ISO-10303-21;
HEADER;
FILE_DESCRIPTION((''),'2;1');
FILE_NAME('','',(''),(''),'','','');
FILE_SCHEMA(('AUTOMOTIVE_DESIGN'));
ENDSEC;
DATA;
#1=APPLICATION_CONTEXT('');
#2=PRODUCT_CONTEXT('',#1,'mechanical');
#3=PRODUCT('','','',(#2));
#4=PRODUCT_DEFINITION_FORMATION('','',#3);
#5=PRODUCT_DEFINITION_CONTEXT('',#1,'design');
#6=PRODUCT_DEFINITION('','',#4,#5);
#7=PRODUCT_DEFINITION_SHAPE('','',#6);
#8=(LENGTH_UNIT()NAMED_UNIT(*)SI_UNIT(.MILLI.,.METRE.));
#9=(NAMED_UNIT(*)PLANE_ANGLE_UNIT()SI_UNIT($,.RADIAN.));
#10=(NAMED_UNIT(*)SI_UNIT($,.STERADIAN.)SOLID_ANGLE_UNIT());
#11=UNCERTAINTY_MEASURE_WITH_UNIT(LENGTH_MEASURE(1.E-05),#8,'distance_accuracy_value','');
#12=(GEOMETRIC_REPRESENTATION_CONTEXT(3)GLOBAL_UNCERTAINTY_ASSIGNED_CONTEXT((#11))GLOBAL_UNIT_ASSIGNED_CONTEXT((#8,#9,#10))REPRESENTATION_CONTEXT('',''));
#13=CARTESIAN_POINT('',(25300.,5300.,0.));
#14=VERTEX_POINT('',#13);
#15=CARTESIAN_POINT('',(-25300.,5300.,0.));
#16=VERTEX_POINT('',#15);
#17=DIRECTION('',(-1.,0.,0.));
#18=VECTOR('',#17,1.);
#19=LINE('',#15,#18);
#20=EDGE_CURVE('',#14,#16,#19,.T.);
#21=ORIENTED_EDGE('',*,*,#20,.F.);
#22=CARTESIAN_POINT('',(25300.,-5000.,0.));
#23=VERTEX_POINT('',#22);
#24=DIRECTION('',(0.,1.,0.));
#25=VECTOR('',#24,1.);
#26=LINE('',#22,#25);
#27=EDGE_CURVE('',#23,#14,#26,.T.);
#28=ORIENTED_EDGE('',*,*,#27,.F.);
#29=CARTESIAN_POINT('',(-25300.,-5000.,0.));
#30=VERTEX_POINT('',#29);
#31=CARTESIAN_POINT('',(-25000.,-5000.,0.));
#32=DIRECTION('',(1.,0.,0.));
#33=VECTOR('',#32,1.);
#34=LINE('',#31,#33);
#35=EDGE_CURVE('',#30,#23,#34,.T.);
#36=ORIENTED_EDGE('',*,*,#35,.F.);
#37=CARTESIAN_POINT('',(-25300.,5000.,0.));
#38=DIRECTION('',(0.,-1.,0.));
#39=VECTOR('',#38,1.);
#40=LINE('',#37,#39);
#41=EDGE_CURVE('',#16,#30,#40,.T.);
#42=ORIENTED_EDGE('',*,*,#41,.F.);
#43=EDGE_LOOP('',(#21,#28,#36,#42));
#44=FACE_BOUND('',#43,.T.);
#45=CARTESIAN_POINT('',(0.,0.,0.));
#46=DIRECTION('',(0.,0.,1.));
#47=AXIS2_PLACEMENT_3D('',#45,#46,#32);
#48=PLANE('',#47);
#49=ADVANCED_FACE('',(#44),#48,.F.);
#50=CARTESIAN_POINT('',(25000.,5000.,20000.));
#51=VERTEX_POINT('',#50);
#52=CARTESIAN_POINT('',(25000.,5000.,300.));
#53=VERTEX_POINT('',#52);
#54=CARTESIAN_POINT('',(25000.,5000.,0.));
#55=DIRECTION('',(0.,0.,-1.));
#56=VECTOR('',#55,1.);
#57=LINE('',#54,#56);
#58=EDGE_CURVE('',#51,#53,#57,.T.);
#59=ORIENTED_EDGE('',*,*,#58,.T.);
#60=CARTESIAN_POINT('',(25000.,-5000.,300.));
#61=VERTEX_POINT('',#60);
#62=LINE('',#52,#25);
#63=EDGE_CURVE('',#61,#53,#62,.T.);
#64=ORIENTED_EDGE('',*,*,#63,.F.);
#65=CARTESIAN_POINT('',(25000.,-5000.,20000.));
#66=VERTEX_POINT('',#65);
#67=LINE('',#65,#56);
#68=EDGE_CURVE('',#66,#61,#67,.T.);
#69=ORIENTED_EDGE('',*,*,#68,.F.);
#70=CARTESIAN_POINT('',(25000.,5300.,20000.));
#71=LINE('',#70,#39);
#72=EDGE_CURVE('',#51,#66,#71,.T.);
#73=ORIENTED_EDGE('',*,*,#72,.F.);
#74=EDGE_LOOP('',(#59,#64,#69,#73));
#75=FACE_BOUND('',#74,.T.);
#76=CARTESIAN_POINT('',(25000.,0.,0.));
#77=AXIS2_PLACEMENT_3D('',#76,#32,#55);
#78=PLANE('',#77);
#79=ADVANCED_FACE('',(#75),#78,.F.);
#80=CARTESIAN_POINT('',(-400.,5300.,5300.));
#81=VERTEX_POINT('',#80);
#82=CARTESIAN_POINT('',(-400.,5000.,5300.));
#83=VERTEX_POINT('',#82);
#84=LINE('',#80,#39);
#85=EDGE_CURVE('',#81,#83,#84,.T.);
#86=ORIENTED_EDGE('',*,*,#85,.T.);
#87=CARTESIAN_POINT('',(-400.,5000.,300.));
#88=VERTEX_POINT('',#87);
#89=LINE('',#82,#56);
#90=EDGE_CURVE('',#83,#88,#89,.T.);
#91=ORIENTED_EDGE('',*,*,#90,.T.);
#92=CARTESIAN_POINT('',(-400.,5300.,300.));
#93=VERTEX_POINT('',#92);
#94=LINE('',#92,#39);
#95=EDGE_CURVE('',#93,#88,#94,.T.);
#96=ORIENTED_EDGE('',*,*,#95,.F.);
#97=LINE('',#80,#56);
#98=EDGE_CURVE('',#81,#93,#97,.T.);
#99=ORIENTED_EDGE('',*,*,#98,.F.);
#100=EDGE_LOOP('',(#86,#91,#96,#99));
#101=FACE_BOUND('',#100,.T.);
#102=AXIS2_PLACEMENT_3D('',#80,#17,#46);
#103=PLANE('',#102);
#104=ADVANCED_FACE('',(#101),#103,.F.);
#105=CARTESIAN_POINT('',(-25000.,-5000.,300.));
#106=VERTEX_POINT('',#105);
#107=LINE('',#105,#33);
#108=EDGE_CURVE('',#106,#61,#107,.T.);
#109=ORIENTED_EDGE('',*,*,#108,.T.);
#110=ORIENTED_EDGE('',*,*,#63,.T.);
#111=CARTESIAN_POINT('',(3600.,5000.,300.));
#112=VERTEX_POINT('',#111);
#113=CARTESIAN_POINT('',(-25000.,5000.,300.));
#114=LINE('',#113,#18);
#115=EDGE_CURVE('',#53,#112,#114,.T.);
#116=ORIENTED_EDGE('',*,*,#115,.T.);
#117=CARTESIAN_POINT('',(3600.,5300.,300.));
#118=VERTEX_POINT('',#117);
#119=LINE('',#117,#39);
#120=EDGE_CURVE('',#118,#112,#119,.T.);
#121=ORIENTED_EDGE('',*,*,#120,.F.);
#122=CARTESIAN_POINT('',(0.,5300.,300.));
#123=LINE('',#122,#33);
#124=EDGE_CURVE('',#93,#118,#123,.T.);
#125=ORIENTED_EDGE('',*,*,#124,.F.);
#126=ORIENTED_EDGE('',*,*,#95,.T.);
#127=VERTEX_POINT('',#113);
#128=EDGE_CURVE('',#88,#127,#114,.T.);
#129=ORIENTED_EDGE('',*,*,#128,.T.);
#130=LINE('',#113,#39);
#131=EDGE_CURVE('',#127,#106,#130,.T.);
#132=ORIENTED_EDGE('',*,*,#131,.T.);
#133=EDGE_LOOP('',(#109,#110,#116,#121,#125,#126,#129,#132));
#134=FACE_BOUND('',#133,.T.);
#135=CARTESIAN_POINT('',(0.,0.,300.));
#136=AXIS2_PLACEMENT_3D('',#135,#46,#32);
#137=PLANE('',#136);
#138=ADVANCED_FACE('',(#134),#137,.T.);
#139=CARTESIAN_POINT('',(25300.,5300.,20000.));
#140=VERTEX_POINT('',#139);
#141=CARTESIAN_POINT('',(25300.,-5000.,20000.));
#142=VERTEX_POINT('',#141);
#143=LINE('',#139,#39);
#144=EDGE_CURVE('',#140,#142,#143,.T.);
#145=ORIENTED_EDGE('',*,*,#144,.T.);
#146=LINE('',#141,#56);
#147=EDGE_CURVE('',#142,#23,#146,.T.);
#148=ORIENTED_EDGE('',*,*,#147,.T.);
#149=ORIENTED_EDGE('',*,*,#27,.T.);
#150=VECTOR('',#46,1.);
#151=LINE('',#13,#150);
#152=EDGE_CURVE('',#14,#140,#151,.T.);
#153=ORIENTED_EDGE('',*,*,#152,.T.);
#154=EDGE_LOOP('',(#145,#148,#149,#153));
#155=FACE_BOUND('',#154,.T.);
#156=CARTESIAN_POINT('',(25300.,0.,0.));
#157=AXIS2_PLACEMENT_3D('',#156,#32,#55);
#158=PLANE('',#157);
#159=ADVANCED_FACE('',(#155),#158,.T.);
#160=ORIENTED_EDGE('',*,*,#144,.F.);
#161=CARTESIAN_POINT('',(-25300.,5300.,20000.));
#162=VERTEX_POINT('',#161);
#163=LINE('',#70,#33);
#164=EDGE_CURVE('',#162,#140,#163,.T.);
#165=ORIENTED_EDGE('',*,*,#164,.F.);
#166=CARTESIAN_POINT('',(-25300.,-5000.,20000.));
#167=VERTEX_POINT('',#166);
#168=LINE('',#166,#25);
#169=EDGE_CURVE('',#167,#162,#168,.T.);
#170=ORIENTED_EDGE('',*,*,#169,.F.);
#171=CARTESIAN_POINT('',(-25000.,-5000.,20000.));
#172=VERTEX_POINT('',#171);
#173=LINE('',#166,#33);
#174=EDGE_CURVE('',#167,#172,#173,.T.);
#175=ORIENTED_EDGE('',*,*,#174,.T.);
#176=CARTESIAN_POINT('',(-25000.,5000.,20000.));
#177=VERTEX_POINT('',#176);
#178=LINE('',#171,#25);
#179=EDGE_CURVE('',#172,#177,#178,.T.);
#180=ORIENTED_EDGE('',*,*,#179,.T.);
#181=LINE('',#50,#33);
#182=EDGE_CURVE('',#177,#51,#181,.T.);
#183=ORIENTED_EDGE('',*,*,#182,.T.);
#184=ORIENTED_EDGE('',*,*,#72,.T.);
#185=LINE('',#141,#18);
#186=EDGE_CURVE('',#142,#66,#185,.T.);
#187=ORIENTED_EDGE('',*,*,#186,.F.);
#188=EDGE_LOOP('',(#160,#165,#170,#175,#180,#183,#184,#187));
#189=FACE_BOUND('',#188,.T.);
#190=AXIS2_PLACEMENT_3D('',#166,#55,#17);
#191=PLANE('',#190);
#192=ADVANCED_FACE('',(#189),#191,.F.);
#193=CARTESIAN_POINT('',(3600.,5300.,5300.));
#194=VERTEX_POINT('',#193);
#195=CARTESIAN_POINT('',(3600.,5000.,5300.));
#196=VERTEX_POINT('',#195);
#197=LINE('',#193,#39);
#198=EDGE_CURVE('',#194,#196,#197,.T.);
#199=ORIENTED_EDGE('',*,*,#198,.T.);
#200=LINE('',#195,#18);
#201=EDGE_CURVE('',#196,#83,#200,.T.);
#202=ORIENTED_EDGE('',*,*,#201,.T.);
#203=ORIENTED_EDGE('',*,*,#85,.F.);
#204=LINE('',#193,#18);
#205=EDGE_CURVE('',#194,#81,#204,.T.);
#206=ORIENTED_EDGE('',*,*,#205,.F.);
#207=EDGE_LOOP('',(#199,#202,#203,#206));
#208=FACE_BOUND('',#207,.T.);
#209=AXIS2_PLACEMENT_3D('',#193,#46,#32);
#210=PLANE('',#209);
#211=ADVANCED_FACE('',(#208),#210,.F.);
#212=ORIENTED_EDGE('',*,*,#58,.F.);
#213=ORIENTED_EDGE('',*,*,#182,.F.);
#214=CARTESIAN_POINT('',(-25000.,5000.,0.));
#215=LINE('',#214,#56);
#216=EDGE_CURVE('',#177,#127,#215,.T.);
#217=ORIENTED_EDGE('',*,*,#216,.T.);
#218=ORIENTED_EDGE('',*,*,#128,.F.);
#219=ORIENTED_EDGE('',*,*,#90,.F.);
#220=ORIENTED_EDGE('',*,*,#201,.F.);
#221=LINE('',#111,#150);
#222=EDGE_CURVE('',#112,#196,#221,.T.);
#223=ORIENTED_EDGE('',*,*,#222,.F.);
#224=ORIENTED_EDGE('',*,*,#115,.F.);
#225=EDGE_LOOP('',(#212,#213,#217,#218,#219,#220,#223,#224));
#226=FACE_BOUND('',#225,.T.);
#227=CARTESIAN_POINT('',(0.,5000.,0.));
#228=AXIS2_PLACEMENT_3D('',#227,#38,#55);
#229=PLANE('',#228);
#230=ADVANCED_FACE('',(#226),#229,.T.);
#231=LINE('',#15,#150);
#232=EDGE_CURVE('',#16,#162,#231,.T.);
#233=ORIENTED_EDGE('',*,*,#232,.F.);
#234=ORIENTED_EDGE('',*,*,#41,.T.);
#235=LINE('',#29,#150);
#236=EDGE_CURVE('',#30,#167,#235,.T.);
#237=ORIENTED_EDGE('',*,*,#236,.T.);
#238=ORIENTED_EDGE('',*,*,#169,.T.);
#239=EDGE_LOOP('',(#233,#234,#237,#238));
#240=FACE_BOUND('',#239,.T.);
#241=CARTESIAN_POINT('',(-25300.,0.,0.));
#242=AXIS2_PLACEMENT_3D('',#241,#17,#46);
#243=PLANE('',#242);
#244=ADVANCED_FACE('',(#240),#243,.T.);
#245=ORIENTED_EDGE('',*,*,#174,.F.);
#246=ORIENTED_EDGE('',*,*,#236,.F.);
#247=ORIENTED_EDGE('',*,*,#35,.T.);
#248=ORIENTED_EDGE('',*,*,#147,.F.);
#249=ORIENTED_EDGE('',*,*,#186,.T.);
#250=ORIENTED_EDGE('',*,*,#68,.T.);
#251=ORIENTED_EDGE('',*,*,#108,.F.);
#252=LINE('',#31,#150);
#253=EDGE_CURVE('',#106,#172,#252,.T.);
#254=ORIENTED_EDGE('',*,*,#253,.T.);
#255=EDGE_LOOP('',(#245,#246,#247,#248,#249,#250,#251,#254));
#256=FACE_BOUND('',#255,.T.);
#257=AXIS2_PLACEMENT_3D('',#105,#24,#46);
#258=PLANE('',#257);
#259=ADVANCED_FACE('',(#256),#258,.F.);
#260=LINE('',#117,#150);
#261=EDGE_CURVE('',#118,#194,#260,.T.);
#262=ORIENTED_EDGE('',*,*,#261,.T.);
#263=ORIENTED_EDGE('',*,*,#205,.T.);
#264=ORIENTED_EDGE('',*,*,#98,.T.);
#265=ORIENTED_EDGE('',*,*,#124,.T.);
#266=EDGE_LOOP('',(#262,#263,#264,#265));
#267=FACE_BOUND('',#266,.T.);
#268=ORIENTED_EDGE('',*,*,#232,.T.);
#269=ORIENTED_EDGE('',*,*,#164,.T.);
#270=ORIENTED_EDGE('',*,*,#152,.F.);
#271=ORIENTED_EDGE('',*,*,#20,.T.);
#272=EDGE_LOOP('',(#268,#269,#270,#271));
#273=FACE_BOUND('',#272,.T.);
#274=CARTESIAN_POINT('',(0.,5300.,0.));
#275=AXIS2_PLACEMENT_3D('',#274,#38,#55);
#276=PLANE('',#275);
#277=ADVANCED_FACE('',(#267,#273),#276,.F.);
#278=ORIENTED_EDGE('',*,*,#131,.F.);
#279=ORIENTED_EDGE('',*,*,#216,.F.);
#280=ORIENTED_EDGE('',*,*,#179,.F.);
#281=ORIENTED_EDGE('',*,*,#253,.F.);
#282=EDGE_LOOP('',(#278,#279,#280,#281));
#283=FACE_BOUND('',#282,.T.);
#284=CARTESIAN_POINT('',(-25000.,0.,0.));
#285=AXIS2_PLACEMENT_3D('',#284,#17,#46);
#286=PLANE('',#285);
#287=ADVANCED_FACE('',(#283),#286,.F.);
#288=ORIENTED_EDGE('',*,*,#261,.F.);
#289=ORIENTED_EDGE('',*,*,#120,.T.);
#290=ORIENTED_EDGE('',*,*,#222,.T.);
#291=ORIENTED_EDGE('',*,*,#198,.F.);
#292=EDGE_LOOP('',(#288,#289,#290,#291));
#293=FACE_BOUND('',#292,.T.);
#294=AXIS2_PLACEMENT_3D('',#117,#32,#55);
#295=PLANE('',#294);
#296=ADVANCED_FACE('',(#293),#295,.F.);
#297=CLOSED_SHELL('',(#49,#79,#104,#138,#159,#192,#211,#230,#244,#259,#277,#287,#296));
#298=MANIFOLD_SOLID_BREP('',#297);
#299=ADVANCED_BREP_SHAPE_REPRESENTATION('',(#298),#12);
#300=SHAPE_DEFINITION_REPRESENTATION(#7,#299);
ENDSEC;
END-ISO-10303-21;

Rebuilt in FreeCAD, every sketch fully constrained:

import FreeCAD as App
import Part
import Sketcher
Q = App.Units.Quantity

doc = App.newDocument("Part")
body = doc.addObject("PartDesign::Body", "Body")

# Sketch on XY plane
sketch1 = body.newObject("Sketcher::SketchObject", "Sketch")
sketch1.AttachmentSupport = (doc.getObject("XY_Plane"), [""])
sketch1.MapMode = "FlatFace"
sketch1.addGeometry([
    Part.LineSegment(App.Vector(-25000, 5000, 0), App.Vector(-25000, -5000, 0)),
    Part.LineSegment(App.Vector(-25000, -5000, 0), App.Vector(25000, -5000, 0)),
    Part.LineSegment(App.Vector(25000, -5000, 0), App.Vector(25000, 5000, 0)),
    Part.LineSegment(App.Vector(25000, 5000, 0), App.Vector(-25000, 5000, 0)),
], False)
sketch1.addConstraint([
    Sketcher.Constraint("Coincident", 0, 2, 1, 1),
    Sketcher.Constraint("Coincident", 1, 2, 2, 1),
    Sketcher.Constraint("Coincident", 2, 2, 3, 1),
    Sketcher.Constraint("Coincident", 3, 2, 0, 1),
    Sketcher.Constraint("Vertical", 0),
    Sketcher.Constraint("Horizontal", 1),
    Sketcher.Constraint("Vertical", 2),
    Sketcher.Constraint("Horizontal", 3),
    Sketcher.Constraint("Symmetric", 0, 2, 2, 2, -1, 1),
    Sketcher.Constraint("DistanceX", 1, 1, 1, 2, Q("50000 mm")),
    Sketcher.Constraint("DistanceY", 0, 2, 0, 1, Q("10000 mm")),
])
pad1 = body.newObject("PartDesign::Pad", "Pad")
pad1.Profile = sketch1
pad1.Length = 300

# Sketch on YZ plane
sketch2 = body.newObject("Sketcher::SketchObject", "Sketch001")
sketch2.AttachmentSupport = (doc.getObject("YZ_Plane"), [""])
sketch2.MapMode = "FlatFace"
sketch2.AttachmentOffset = App.Placement(App.Vector(0, 0, -25000), App.Rotation())
sketch2.addGeometry([
    Part.LineSegment(App.Vector(5000, 0, 0), App.Vector(-5000, 0, 0)),
    Part.LineSegment(App.Vector(-5000, 0, 0), App.Vector(-5000, 20000, 0)),
    Part.LineSegment(App.Vector(-5000, 20000, 0), App.Vector(5000, 20000, 0)),
    Part.LineSegment(App.Vector(5000, 20000, 0), App.Vector(5000, 0, 0)),
], False)
sketch2.addConstraint([
    Sketcher.Constraint("Coincident", 0, 2, 1, 1),
    Sketcher.Constraint("Coincident", 1, 2, 2, 1),
    Sketcher.Constraint("Coincident", 2, 2, 3, 1),
    Sketcher.Constraint("Coincident", 3, 2, 0, 1),
    Sketcher.Constraint("Horizontal", 0),
    Sketcher.Constraint("Vertical", 1),
    Sketcher.Constraint("Horizontal", 2),
    Sketcher.Constraint("Vertical", 3),
    Sketcher.Constraint("Symmetric", 0, 2, 3, 2, -1, 1),
    Sketcher.Constraint("DistanceX", 0, 2, 0, 1, Q("10000 mm")),
    Sketcher.Constraint("DistanceY", 1, 1, 1, 2, Q("20000 mm")),
])
pad2 = body.newObject("PartDesign::Pad", "Pad001")
pad2.Profile = sketch2
pad2.Length = 300
pad2.Reversed = True

# Sketch on XZ plane
sketch3 = body.newObject("Sketcher::SketchObject", "Sketch002")
sketch3.AttachmentSupport = (doc.getObject("XZ_Plane"), [""])
sketch3.MapMode = "FlatFace"
sketch3.AttachmentOffset = App.Placement(App.Vector(0, 0, -5000), App.Rotation())
sketch3.addGeometry([
    Part.LineSegment(App.Vector(-25300, 0, 0), App.Vector(-25300, 20000, 0)),
    Part.LineSegment(App.Vector(-25300, 20000, 0), App.Vector(25000, 20000, 0)),
    Part.LineSegment(App.Vector(25000, 20000, 0), App.Vector(25000, 0, 0)),
    Part.LineSegment(App.Vector(25000, 0, 0), App.Vector(-25300, 0, 0)),
], False)
sketch3.addConstraint([
    Sketcher.Constraint("Coincident", 0, 2, 1, 1),
    Sketcher.Constraint("Coincident", 1, 2, 2, 1),
    Sketcher.Constraint("Coincident", 2, 2, 3, 1),
    Sketcher.Constraint("Coincident", 3, 2, 0, 1),
    Sketcher.Constraint("Vertical", 0),
    Sketcher.Constraint("Horizontal", 1),
    Sketcher.Constraint("Vertical", 2),
    Sketcher.Constraint("Horizontal", 3),
    Sketcher.Constraint("PointOnObject", 2, 2, -1),
    Sketcher.Constraint("DistanceX", 1, 1, 1, 2, Q("50300 mm")),
    Sketcher.Constraint("DistanceY", 0, 1, 0, 2, Q("20000 mm")),
    Sketcher.Constraint("DistanceX", 0, 2, -1, 1, Q("25300 mm")),
])
pad3 = body.newObject("PartDesign::Pad", "Pad002")
pad3.Profile = sketch3
pad3.Length = 300
pad3.Reversed = True

# Sketch on YZ plane
sketch4 = body.newObject("Sketcher::SketchObject", "Sketch003")
sketch4.AttachmentSupport = (doc.getObject("YZ_Plane"), [""])
sketch4.MapMode = "FlatFace"
sketch4.AttachmentOffset = App.Placement(App.Vector(0, 0, 25000), App.Rotation())
sketch4.addGeometry([
    Part.LineSegment(App.Vector(5300, 20000, 0), App.Vector(-5000, 20000, 0)),
    Part.LineSegment(App.Vector(-5000, 20000, 0), App.Vector(-5000, 0, 0)),
    Part.LineSegment(App.Vector(-5000, 0, 0), App.Vector(5300, 0, 0)),
    Part.LineSegment(App.Vector(5300, 0, 0), App.Vector(5300, 20000, 0)),
], False)
sketch4.addConstraint([
    Sketcher.Constraint("Coincident", 0, 2, 1, 1),
    Sketcher.Constraint("Coincident", 1, 2, 2, 1),
    Sketcher.Constraint("Coincident", 2, 2, 3, 1),
    Sketcher.Constraint("Coincident", 3, 2, 0, 1),
    Sketcher.Constraint("Horizontal", 0),
    Sketcher.Constraint("Vertical", 1),
    Sketcher.Constraint("Horizontal", 2),
    Sketcher.Constraint("Vertical", 3),
    Sketcher.Constraint("PointOnObject", 1, 2, -1),
    Sketcher.Constraint("DistanceX", 0, 2, 0, 1, Q("10300 mm")),
    Sketcher.Constraint("DistanceY", 1, 2, 1, 1, Q("20000 mm")),
    Sketcher.Constraint("DistanceX", 0, 2, -1, 1, Q("5000 mm")),
])
pad4 = body.newObject("PartDesign::Pad", "Pad003")
pad4.Profile = sketch4
pad4.Length = 300

# Sketch on XZ plane
sketch5 = body.newObject("Sketcher::SketchObject", "Sketch004")
sketch5.AttachmentSupport = (doc.getObject("XZ_Plane"), [""])
sketch5.MapMode = "FlatFace"
sketch5.AttachmentOffset = App.Placement(App.Vector(0, 0, -5000), App.Rotation())
sketch5.addGeometry([
    Part.LineSegment(App.Vector(-400, 300, 0), App.Vector(3600, 300, 0)),
    Part.LineSegment(App.Vector(3600, 300, 0), App.Vector(3600, 5300, 0)),
    Part.LineSegment(App.Vector(3600, 5300, 0), App.Vector(-400, 5300, 0)),
    Part.LineSegment(App.Vector(-400, 5300, 0), App.Vector(-400, 300, 0)),
], False)
sketch5.addConstraint([
    Sketcher.Constraint("Coincident", 0, 2, 1, 1),
    Sketcher.Constraint("Coincident", 1, 2, 2, 1),
    Sketcher.Constraint("Coincident", 2, 2, 3, 1),
    Sketcher.Constraint("Coincident", 3, 2, 0, 1),
    Sketcher.Constraint("Horizontal", 0),
    Sketcher.Constraint("Vertical", 1),
    Sketcher.Constraint("Horizontal", 2),
    Sketcher.Constraint("Vertical", 3),
    Sketcher.Constraint("DistanceX", 0, 1, 0, 2, Q("4000 mm")),
    Sketcher.Constraint("DistanceY", 1, 1, 1, 2, Q("5000 mm")),
    Sketcher.Constraint("DistanceX", -1, 1, 0, 2, Q("3600 mm")),
    Sketcher.Constraint("DistanceY", -1, 1, 0, 2, Q("300 mm")),
])
pocket1 = body.newObject("PartDesign::Pocket", "Pocket")
pocket1.Profile = sketch5
pocket1.Length = 300

doc.recompute()
